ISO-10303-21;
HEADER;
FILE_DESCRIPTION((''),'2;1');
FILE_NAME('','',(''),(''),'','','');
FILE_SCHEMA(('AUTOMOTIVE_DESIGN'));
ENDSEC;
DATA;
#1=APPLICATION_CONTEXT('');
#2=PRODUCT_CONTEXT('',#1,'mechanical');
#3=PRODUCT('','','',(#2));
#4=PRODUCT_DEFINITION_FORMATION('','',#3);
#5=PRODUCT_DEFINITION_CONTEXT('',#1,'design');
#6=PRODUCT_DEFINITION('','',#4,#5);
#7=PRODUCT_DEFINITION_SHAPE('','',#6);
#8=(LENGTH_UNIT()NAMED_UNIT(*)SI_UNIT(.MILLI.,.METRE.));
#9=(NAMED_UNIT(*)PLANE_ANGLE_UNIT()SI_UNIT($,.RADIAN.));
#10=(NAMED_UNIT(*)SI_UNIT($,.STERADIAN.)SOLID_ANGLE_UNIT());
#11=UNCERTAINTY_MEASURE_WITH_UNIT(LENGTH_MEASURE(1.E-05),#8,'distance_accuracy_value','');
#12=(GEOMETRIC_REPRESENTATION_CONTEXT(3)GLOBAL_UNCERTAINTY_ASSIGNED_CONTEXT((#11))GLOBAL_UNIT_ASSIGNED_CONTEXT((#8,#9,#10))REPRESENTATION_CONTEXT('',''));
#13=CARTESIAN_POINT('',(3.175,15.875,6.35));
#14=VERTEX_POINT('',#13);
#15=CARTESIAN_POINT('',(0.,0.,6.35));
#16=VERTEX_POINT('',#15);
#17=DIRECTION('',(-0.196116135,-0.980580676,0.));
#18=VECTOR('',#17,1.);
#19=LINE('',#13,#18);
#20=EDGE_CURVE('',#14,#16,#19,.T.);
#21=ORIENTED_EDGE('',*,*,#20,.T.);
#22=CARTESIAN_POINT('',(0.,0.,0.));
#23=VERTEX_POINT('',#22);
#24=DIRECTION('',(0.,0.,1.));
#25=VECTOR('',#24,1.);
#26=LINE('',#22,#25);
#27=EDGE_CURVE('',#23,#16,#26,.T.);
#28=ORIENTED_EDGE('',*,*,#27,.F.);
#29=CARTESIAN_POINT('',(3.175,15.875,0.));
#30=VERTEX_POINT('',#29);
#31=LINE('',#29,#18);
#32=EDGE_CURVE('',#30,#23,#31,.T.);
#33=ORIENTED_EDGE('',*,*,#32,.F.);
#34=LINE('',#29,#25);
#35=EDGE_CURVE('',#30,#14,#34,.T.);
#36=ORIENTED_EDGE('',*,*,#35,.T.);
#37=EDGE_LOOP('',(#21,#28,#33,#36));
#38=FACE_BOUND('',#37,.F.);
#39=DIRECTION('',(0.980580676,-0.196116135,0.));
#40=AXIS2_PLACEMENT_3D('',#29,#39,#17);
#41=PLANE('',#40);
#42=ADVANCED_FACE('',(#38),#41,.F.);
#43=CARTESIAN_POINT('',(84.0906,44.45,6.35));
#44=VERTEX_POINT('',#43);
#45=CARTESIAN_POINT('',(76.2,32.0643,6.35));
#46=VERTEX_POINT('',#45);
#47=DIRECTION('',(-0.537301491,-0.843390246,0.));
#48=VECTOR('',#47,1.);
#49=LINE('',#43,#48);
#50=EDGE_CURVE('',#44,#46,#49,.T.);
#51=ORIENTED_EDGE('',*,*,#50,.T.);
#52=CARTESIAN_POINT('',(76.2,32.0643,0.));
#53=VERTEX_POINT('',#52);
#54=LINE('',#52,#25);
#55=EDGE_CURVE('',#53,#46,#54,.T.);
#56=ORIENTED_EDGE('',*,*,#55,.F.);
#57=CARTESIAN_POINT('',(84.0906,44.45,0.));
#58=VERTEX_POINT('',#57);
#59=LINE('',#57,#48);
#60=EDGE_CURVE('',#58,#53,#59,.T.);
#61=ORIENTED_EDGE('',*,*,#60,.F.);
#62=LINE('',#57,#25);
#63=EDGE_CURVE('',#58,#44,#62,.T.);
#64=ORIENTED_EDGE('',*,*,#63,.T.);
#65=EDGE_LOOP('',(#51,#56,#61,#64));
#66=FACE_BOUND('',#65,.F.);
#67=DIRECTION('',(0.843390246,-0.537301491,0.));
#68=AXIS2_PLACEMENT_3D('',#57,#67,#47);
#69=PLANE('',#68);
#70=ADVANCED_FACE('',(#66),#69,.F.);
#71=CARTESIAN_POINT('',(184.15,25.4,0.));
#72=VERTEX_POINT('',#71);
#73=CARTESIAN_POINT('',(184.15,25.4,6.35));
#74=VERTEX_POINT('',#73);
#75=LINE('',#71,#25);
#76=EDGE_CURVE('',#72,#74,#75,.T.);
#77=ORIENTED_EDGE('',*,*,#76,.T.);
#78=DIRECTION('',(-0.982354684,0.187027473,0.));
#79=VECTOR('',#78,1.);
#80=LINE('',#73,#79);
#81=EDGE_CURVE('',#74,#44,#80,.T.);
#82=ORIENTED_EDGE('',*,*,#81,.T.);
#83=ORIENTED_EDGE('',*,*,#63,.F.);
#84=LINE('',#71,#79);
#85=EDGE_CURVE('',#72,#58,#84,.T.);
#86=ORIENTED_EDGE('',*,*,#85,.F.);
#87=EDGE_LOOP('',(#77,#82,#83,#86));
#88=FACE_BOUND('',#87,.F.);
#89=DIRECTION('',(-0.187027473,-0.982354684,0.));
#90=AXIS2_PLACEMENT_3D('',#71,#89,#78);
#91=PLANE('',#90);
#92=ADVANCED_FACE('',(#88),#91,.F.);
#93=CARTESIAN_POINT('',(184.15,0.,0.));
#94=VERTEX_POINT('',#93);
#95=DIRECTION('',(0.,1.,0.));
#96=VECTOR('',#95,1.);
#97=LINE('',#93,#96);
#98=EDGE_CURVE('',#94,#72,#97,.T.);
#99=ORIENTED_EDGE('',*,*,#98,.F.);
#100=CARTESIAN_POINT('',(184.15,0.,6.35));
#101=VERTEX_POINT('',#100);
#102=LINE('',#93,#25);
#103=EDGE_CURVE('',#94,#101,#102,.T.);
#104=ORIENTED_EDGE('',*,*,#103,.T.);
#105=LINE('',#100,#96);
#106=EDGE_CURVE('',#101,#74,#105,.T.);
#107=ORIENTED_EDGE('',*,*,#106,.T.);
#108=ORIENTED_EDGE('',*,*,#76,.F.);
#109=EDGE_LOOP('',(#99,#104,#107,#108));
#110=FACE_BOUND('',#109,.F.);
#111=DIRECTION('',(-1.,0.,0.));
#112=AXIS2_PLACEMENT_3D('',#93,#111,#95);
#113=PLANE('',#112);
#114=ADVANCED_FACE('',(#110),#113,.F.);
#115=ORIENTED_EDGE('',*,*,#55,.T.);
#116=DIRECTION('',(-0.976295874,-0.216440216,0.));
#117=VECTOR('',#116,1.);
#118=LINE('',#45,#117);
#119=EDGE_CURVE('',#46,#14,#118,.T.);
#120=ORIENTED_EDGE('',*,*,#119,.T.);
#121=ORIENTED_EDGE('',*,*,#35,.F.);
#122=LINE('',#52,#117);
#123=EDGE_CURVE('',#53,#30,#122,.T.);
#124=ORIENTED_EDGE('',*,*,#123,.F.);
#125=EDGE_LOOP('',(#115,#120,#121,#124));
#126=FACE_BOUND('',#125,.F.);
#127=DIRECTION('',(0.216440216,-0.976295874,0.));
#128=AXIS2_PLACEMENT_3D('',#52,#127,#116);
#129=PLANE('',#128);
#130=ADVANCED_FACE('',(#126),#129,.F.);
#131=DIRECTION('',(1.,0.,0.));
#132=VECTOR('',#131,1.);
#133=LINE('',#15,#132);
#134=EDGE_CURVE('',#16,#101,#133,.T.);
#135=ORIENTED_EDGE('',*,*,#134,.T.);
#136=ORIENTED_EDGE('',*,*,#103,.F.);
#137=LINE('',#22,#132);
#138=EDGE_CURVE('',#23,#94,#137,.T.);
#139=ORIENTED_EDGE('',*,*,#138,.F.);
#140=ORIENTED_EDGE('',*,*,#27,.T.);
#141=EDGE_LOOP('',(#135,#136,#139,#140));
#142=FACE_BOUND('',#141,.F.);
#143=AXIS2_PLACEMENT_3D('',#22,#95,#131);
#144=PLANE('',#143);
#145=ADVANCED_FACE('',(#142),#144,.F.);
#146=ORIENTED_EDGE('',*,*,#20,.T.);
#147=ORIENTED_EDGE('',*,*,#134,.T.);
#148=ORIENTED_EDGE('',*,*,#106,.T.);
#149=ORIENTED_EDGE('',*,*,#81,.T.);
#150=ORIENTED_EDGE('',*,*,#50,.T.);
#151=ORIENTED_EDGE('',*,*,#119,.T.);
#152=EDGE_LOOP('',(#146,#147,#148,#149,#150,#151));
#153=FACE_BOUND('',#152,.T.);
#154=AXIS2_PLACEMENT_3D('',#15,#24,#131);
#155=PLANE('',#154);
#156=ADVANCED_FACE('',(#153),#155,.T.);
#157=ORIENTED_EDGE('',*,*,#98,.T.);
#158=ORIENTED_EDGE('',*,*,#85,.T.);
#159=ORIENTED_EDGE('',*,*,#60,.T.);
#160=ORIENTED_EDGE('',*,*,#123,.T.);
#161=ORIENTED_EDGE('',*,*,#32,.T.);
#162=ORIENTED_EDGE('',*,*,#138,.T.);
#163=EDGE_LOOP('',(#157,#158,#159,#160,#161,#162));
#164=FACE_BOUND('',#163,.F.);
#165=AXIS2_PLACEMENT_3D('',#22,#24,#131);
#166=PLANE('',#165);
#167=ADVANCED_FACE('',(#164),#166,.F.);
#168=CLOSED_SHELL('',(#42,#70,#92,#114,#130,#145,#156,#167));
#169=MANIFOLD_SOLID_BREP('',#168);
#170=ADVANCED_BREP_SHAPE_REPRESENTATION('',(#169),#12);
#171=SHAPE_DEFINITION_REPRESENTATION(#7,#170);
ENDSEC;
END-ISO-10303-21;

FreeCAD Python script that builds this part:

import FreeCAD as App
import Part
import Sketcher
from FreeCAD import Vector
Q = App.Units.Quantity


def add_polygon(sketch, points):
    """Adds a closed chain of lines whose ends are joined by coincident constraints."""
    first, n = sketch.GeometryCount, len(points)
    for a, b in zip(points, points[1:] + points[:1]):
        sketch.addGeometry(Part.LineSegment(App.Vector(*a, 0), App.Vector(*b, 0)), False)
    for i in range(n):
        sketch.addConstraint(Sketcher.Constraint("Coincident", first + i, 2, first + (i + 1) % n, 1))

doc = App.newDocument("Part")
params = doc.addObject("Spreadsheet::Sheet", "Params")
for row, (alias, value) in enumerate([
    ("sketch1_height", "1 in"),
    ("sketch1_width", "7.25 in"),
    ("pad1_length", "0.25 in"),
], start=1):
    params.set(f"A{row}", alias)
    params.set(f"B{row}", "=" + value)
    params.setAlias(f"B{row}", alias)

body = doc.addObject("PartDesign::Body", "Body")

# Sketch on XY plane
sketch1 = body.newObject("Sketcher::SketchObject", "Sketch")
sketch1.AttachmentSupport = (doc.getObject("XY_Plane"), [""])
sketch1.MapMode = "FlatFace"
add_polygon(sketch1, [(3, 16), (0, 0), (184, 0), (184, 25), (84, 44), (76, 32)])  # lines 0-5
sketch1.addConstraint([
    Sketcher.Constraint("Horizontal", 1),
    Sketcher.Constraint("Vertical", 2),
    Sketcher.Constraint("Coincident", 0, 2, -1, 1),
    Sketcher.Constraint("DistanceY", 2, 1, 2, 2, Q("1 in")),
    Sketcher.Constraint("DistanceX", -1, 1, 4, 2, Q("3 in")),
    Sketcher.Constraint("DistanceX", 1, 1, 1, 2, Q("7.25 in")),
    Sketcher.Constraint("DistanceY", -1, 1, 3, 2, Q("1.75 in")),
    Sketcher.Constraint("DistanceX", -1, 1, 5, 2, Q("0.125 in")),
    Sketcher.Constraint("DistanceY", -1, 1, 5, 2, Q("0.625 in")),
    Sketcher.Constraint("Angle", 4, Q("-122.5001 deg")),
    Sketcher.Constraint("Angle", 5, Q("-167.5 deg")),
])
sketch1.setExpression("Constraints[9]", "Params.sketch1_height")
sketch1.setExpression("Constraints[11]", "Params.sketch1_width")
pad1 = body.newObject("PartDesign::Pad", "Pad")
pad1.Profile = sketch1
pad1.setExpression("Length", "Params.pad1_length")

doc.recompute()
